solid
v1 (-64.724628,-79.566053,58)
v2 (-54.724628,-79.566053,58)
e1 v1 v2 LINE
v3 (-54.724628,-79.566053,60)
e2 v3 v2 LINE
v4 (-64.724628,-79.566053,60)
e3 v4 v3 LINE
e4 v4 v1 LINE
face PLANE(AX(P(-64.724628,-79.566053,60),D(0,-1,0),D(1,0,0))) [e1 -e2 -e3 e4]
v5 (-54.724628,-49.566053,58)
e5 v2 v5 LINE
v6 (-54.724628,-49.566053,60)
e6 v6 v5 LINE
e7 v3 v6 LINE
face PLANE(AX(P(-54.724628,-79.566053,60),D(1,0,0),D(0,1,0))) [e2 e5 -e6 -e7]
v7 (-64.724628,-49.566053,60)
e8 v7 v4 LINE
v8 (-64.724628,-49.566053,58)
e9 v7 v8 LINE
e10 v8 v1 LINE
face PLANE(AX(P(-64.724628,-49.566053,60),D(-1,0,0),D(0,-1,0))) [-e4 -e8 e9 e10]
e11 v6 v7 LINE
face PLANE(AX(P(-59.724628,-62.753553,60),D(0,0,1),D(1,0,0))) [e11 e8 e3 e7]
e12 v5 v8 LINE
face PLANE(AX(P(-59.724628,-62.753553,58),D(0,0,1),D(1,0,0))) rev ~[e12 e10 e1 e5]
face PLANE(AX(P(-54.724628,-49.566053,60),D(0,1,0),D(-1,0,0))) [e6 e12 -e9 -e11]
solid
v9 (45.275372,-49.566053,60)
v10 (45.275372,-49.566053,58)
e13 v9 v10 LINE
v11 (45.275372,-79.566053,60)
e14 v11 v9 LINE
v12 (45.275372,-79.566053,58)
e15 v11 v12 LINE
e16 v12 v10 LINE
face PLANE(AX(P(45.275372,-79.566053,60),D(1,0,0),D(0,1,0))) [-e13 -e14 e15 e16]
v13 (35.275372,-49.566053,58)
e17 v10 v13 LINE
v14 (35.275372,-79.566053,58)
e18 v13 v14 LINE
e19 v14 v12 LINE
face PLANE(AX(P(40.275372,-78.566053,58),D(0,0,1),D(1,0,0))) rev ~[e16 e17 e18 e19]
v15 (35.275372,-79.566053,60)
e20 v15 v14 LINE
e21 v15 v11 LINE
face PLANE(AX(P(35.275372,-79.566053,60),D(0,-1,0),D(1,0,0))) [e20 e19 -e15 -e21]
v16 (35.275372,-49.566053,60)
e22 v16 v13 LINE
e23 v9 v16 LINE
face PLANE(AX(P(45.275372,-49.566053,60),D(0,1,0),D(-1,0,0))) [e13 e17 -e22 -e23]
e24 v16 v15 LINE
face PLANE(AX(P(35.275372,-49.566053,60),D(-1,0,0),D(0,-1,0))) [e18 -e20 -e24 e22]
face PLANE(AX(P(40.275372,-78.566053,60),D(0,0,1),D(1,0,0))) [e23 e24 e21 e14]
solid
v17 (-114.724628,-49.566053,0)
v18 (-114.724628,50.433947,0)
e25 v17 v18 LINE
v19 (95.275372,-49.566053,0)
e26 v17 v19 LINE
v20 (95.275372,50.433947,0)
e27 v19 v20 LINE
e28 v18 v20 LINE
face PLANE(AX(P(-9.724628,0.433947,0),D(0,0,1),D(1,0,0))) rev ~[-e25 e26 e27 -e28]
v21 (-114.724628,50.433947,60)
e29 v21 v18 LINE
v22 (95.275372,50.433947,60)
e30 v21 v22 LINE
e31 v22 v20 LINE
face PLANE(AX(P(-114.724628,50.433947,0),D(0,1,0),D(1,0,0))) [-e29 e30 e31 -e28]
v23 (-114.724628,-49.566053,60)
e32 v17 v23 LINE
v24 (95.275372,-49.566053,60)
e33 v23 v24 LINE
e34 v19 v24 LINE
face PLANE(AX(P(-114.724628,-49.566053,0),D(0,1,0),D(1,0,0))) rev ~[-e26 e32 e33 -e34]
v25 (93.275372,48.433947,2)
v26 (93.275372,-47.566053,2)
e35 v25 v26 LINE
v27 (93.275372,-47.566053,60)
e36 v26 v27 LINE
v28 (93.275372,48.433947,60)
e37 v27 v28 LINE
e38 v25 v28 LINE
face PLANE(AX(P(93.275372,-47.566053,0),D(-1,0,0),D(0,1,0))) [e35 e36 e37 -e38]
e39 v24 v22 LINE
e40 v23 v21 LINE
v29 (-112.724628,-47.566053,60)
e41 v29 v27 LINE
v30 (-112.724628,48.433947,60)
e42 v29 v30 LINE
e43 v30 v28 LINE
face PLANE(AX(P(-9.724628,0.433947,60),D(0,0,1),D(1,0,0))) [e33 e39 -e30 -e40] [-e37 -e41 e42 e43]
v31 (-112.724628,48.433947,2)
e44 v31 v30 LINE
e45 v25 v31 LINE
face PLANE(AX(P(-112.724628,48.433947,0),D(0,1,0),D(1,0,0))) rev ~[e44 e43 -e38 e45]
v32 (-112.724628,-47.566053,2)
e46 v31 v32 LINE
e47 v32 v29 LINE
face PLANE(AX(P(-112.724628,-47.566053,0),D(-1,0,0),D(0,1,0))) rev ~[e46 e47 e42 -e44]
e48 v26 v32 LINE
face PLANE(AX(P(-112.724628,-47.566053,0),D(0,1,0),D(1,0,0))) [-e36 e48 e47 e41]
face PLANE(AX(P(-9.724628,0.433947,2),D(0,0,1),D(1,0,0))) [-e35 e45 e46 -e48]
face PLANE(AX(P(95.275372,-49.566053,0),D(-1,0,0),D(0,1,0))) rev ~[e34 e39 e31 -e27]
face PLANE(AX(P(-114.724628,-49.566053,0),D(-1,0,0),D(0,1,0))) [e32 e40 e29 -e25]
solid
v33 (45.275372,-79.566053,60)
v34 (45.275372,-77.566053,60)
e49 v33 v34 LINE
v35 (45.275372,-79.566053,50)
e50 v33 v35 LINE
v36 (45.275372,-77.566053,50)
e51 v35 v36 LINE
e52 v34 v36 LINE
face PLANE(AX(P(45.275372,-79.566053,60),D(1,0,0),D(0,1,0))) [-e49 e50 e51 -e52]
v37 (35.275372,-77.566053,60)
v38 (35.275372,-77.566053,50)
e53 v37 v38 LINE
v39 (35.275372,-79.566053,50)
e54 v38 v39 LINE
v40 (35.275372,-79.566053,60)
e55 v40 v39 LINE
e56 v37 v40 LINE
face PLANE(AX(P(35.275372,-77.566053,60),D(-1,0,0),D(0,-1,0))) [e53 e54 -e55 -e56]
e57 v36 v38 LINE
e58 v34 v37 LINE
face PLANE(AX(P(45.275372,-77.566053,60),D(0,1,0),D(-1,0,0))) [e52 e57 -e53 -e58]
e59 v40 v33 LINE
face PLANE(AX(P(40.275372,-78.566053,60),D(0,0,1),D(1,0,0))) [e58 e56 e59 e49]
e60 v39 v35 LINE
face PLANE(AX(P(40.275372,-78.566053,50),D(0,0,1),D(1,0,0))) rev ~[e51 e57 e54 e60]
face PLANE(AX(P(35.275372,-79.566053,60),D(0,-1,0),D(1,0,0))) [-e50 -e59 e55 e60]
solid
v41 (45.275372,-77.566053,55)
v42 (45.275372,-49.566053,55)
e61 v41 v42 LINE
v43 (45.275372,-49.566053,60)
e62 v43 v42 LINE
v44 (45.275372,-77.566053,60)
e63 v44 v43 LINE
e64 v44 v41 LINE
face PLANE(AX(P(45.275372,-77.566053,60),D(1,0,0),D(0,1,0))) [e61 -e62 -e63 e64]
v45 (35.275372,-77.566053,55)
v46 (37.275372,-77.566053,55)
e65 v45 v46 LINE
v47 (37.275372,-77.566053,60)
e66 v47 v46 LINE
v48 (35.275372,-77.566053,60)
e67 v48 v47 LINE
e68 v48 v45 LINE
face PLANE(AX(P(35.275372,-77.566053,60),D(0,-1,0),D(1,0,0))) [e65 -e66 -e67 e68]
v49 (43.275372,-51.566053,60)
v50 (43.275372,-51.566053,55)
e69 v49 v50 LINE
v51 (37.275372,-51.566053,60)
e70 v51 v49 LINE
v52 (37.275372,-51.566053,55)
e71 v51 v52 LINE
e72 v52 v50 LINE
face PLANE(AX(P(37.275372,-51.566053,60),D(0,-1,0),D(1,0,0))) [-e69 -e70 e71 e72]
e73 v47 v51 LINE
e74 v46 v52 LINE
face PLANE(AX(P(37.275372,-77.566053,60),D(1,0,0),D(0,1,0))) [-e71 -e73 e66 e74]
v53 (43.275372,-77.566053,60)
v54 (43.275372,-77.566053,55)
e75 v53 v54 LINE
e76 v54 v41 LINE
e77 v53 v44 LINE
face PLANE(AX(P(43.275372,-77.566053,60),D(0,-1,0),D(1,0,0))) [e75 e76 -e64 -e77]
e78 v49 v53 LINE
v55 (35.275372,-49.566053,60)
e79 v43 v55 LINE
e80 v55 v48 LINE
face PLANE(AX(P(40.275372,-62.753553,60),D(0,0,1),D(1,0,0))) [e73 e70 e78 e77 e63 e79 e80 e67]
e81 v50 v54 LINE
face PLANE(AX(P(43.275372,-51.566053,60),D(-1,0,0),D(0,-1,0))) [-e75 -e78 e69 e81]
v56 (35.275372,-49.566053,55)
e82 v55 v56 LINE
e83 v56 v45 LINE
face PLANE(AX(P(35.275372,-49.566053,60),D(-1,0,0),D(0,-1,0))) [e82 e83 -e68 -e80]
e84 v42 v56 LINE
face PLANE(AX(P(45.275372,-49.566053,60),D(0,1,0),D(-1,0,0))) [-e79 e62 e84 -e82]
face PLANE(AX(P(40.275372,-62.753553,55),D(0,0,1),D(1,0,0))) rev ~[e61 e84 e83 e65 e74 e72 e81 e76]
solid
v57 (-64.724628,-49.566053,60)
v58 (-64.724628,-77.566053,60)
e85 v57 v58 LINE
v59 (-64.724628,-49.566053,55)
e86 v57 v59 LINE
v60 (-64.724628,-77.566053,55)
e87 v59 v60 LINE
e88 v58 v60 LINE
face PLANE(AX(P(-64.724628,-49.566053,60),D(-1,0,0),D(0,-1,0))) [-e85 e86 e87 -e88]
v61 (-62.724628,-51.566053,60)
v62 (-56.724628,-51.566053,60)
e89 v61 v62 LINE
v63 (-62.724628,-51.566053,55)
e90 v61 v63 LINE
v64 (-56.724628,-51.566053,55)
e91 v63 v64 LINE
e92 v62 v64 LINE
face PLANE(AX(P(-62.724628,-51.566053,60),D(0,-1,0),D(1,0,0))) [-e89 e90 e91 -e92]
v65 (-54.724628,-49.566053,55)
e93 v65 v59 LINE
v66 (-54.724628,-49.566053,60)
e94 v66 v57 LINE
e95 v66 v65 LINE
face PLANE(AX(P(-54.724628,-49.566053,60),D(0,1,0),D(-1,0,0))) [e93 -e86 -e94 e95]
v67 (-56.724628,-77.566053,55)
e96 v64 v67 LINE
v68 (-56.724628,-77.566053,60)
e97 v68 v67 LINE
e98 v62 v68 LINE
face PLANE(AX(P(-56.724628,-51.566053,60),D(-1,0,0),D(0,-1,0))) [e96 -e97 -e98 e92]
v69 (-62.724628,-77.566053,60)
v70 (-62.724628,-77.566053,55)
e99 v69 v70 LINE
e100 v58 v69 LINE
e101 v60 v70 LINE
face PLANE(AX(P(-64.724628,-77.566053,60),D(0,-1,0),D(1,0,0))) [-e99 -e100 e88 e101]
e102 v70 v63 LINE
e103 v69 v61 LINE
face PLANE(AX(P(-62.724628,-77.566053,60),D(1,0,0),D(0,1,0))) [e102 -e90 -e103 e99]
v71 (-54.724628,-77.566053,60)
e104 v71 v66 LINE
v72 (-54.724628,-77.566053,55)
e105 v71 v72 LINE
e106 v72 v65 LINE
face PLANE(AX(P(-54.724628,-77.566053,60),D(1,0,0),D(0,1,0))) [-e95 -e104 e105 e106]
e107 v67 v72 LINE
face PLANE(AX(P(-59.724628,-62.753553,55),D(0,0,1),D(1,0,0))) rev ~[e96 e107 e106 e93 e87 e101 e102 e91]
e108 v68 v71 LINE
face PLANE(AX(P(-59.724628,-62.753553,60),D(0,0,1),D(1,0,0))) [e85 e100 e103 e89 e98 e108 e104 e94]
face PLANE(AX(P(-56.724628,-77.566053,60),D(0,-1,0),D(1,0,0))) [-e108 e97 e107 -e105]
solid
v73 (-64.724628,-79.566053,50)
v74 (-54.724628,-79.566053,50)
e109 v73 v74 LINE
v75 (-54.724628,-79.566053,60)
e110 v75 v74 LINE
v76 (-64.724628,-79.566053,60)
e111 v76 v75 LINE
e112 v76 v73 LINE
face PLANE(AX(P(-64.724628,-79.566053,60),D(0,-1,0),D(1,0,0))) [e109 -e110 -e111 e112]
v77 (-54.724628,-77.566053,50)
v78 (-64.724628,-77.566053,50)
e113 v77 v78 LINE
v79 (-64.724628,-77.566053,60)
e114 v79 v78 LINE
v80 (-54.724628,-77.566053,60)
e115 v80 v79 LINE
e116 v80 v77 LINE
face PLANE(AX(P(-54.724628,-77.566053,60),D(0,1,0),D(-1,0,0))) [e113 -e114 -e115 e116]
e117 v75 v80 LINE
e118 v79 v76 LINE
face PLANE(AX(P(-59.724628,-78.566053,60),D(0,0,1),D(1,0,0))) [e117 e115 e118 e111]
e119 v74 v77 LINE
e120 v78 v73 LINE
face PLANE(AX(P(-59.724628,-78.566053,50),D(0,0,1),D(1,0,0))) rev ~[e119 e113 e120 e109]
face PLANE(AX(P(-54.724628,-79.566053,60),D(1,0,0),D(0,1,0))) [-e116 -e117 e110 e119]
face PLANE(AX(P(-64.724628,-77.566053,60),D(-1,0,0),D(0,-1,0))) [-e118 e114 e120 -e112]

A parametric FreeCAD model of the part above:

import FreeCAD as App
import Part
import Sketcher

V = App.Vector
Q = App.Units.Quantity


def add_polygon(sketch, points):
    """Adds a closed chain of lines whose ends are joined by coincident constraints."""
    first, n = sketch.GeometryCount, len(points)
    for a, b in zip(points, points[1:] + points[:1]):
        sketch.addGeometry(Part.LineSegment(App.Vector(*a, 0), App.Vector(*b, 0)), False)
    for i in range(n):
        sketch.addConstraint(Sketcher.Constraint("Coincident", first + i, 2, first + (i + 1) % n, 1))

doc = App.newDocument("Part")
body = doc.addObject("PartDesign::Body", "Body")

sketch1 = body.newObject("Sketcher::SketchObject", "Sketch")
sketch1.AttachmentSupport = (doc.getObject("XY_Plane"), [""])
sketch1.MapMode = "FlatFace"
add_polygon(sketch1, [(-115, 50), (-115, -50), (95, -50), (95, 50)])
sketch1.addConstraint(Sketcher.Constraint("Vertical", 0))
sketch1.addConstraint(Sketcher.Constraint("Horizontal", 1))
sketch1.addConstraint(Sketcher.Constraint("Vertical", 2))
sketch1.addConstraint(Sketcher.Constraint("Horizontal", 3))
sketch1.addConstraint(Sketcher.Constraint("DistanceX", 1, 1, 1, 2, Q("210 mm")))
sketch1.addConstraint(Sketcher.Constraint("DistanceY", 0, 2, 0, 1, Q("100 mm")))
sketch1.addConstraint(Sketcher.Constraint("DistanceX", 0, 2, -1, 1, Q("114.724628 mm")))
sketch1.addConstraint(Sketcher.Constraint("DistanceY", 0, 2, -1, 1, Q("49.566053 mm")))
pad1 = body.newObject("PartDesign::Pad", "Pad")
pad1.Profile = sketch1
pad1.Length = 2

sketch2 = body.newObject("Sketcher::SketchObject", "Sketch001")
sketch2.AttachmentSupport = (doc.getObject("XY_Plane"), [""])
sketch2.MapMode = "FlatFace"
add_polygon(sketch2, [(-115, 50), (-115, -50), (95, -50), (95, 50)])
add_polygon(sketch2, [(93, -48), (-113, -48), (-113, 48), (93, 48)])
sketch2.addConstraint(Sketcher.Constraint("Vertical", 0))
sketch2.addConstraint(Sketcher.Constraint("Horizontal", 1))
sketch2.addConstraint(Sketcher.Constraint("Vertical", 2))
sketch2.addConstraint(Sketcher.Constraint("Horizontal", 3))
sketch2.addConstraint(Sketcher.Constraint("Horizontal", 4))
sketch2.addConstraint(Sketcher.Constraint("Vertical", 5))
sketch2.addConstraint(Sketcher.Constraint("Horizontal", 6))
sketch2.addConstraint(Sketcher.Constraint("Vertical", 7))
sketch2.addConstraint(Sketcher.Constraint("DistanceX", 1, 1, 1, 2, Q("210 mm")))
sketch2.addConstraint(Sketcher.Constraint("DistanceX", 4, 2, 4, 1, Q("206 mm")))
sketch2.addConstraint(Sketcher.Constraint("DistanceY", 0, 2, 0, 1, Q("100 mm")))
sketch2.addConstraint(Sketcher.Constraint("DistanceY", 5, 1, 5, 2, Q("96 mm")))
sketch2.addConstraint(Sketcher.Constraint("DistanceX", 0, 2, 4, 2, Q("2 mm")))
sketch2.addConstraint(Sketcher.Constraint("DistanceY", 0, 2, 4, 2, Q("2 mm")))
sketch2.addConstraint(Sketcher.Constraint("DistanceX", 0, 2, -1, 1, Q("114.724628 mm")))
sketch2.addConstraint(Sketcher.Constraint("DistanceY", 0, 2, -1, 1, Q("49.566053 mm")))
pad2 = body.newObject("PartDesign::Pad", "Pad001")
pad2.Profile = sketch2
pad2.Length = 60
body2 = doc.addObject("PartDesign::Body", "Body001")

sketch3 = body2.newObject("Sketcher::SketchObject", "Sketch002")
sketch3.AttachmentSupport = (doc.getObject("XY_Plane001"), [""])
sketch3.MapMode = "FlatFace"
sketch3.AttachmentOffset = App.Placement(V(0, 0, 60), App.Rotation())
add_polygon(sketch3, [(-55, -50), (-65, -50), (-65, -80), (-55, -80)])
sketch3.addConstraint(Sketcher.Constraint("Horizontal", 0))
sketch3.addConstraint(Sketcher.Constraint("Vertical", 1))
sketch3.addConstraint(Sketcher.Constraint("Horizontal", 2))
sketch3.addConstraint(Sketcher.Constraint("Vertical", 3))
sketch3.addConstraint(Sketcher.Constraint("DistanceX", 0, 2, 0, 1, Q("10 mm")))
sketch3.addConstraint(Sketcher.Constraint("DistanceY", 1, 2, 1, 1, Q("30 mm")))
sketch3.addConstraint(Sketcher.Constraint("DistanceX", 0, 2, -1, 1, Q("64.724628 mm")))
sketch3.addConstraint(Sketcher.Constraint("DistanceY", 0, 2, -1, 1, Q("49.566053 mm")))
pad3 = body2.newObject("PartDesign::Pad", "Pad002")
pad3.Profile = sketch3
pad3.Length = 2
pad3.Reversed = True
body3 = doc.addObject("PartDesign::Body", "Body002")

sketch4 = body3.newObject("Sketcher::SketchObject", "Sketch003")
sketch4.AttachmentSupport = (doc.getObject("XY_Plane002"), [""])
sketch4.MapMode = "FlatFace"
sketch4.AttachmentOffset = App.Placement(V(0, 0, 60), App.Rotation())
add_polygon(sketch4, [(35, -80), (45, -80), (45, -50), (35, -50)])
sketch4.addConstraint(Sketcher.Constraint("Horizontal", 0))
sketch4.addConstraint(Sketcher.Constraint("Vertical", 1))
sketch4.addConstraint(Sketcher.Constraint("Horizontal", 2))
sketch4.addConstraint(Sketcher.Constraint("Vertical", 3))
sketch4.addConstraint(Sketcher.Constraint("DistanceX", 0, 1, 0, 2, Q("10 mm")))
sketch4.addConstraint(Sketcher.Constraint("DistanceY", 1, 1, 1, 2, Q("30 mm")))
sketch4.addConstraint(Sketcher.Constraint("DistanceX", -1, 1, 0, 2, Q("45.275372 mm")))
sketch4.addConstraint(Sketcher.Constraint("DistanceY", 0, 2, -1, 1, Q("79.566053 mm")))
pad4 = body3.newObject("PartDesign::Pad", "Pad003")
pad4.Profile = sketch4
pad4.Length = 2
pad4.Reversed = True
body4 = doc.addObject("PartDesign::Body", "Body003")

sketch5 = body4.newObject("Sketcher::SketchObject", "Sketch004")
sketch5.AttachmentSupport = (doc.getObject("XY_Plane003"), [""])
sketch5.MapMode = "FlatFace"
sketch5.AttachmentOffset = App.Placement(V(0, 0, 60), App.Rotation())
add_polygon(sketch5, [(-64.7, -77.6), (-64.7, -79.6), (-54.7, -79.6), (-54.7, -77.6)])
sketch5.addConstraint(Sketcher.Constraint("Vertical", 0))
sketch5.addConstraint(Sketcher.Constraint("Horizontal", 1))
sketch5.addConstraint(Sketcher.Constraint("Vertical", 2))
sketch5.addConstraint(Sketcher.Constraint("Horizontal", 3))
sketch5.addConstraint(Sketcher.Constraint("DistanceX", 1, 1, 1, 2, Q("10 mm")))
sketch5.addConstraint(Sketcher.Constraint("DistanceY", 0, 2, 0, 1, Q("2 mm")))
sketch5.addConstraint(Sketcher.Constraint("DistanceX", 0, 2, -1, 1, Q("64.724628 mm")))
sketch5.addConstraint(Sketcher.Constraint("DistanceY", 0, 2, -1, 1, Q("79.566053 mm")))
pad5 = body4.newObject("PartDesign::Pad", "Pad004")
pad5.Profile = sketch5
pad5.Length = 10
pad5.Reversed = True
body5 = doc.addObject("PartDesign::Body", "Body004")

sketch6 = body5.newObject("Sketcher::SketchObject", "Sketch005")
sketch6.AttachmentSupport = (doc.getObject("XY_Plane004"), [""])
sketch6.MapMode = "FlatFace"
sketch6.AttachmentOffset = App.Placement(V(0, 0, 60), App.Rotation())
add_polygon(sketch6, [(35.3, -77.6), (35.3, -79.6), (45.3, -79.6), (45.3, -77.6)])
sketch6.addConstraint(Sketcher.Constraint("Vertical", 0))
sketch6.addConstraint(Sketcher.Constraint("Horizontal", 1))
sketch6.addConstraint(Sketcher.Constraint("Vertical", 2))
sketch6.addConstraint(Sketcher.Constraint("Horizontal", 3))
sketch6.addConstraint(Sketcher.Constraint("DistanceX", 1, 1, 1, 2, Q("10 mm")))
sketch6.addConstraint(Sketcher.Constraint("DistanceY", 0, 2, 0, 1, Q("2 mm")))
sketch6.addConstraint(Sketcher.Constraint("DistanceX", -1, 1, 0, 2, Q("35.275372 mm")))
sketch6.addConstraint(Sketcher.Constraint("DistanceY", 0, 2, -1, 1, Q("79.566053 mm")))
pad6 = body5.newObject("PartDesign::Pad", "Pad005")
pad6.Profile = sketch6
pad6.Length = 10
pad6.Reversed = True
body6 = doc.addObject("PartDesign::Body", "Body005")

sketch7 = body6.newObject("Sketcher::SketchObject", "Sketch006")
sketch7.AttachmentSupport = (doc.getObject("XY_Plane005"), [""])
sketch7.MapMode = "FlatFace"
sketch7.AttachmentOffset = App.Placement(V(0, 0, 60), App.Rotation())
add_polygon(sketch7, [(-54.7, -49.6), (-64.7, -49.6), (-64.7, -77.6), (-62.7, -77.6), (-62.7, -51.6), (-56.7, -51.6), (-56.7, -77.6), (-54.7, -77.6)])
sketch7.addConstraint(Sketcher.Constraint("Horizontal", 0))
sketch7.addConstraint(Sketcher.Constraint("Vertical", 1))
sketch7.addConstraint(Sketcher.Constraint("Horizontal", 2))
sketch7.addConstraint(Sketcher.Constraint("Vertical", 3))
sketch7.addConstraint(Sketcher.Constraint("Horizontal", 4))
sketch7.addConstraint(Sketcher.Constraint("Vertical", 5))
sketch7.addConstraint(Sketcher.Constraint("Horizontal", 6))
sketch7.addConstraint(Sketcher.Constraint("Vertical", 7))
sketch7.addConstraint(Sketcher.Constraint("Horizontal", 2, 2, 5, 2))
sketch7.addConstraint(Sketcher.Constraint("Equal", 2, 6))
sketch7.addConstraint(Sketcher.Constraint("DistanceX", 0, 2, 0, 1, Q("10 mm")))
sketch7.addConstraint(Sketcher.Constraint("DistanceX", 2, 1, 2, 2, Q("2 mm")))
sketch7.addConstraint(Sketcher.Constraint("DistanceY", 1, 2, 1, 1, Q("28 mm")))
sketch7.addConstraint(Sketcher.Constraint("DistanceY", 3, 1, 3, 2, Q("26 mm")))
sketch7.addConstraint(Sketcher.Constraint("DistanceX", 0, 2, -1, 1, Q("64.724628 mm")))
sketch7.addConstraint(Sketcher.Constraint("DistanceY", 0, 2, -1, 1, Q("49.566053 mm")))
pad7 = body6.newObject("PartDesign::Pad", "Pad006")
pad7.Profile = sketch7
pad7.Length = 5
pad7.Reversed = True
body7 = doc.addObject("PartDesign::Body", "Body006")

sketch8 = body7.newObject("Sketcher::SketchObject", "Sketch007")
sketch8.AttachmentSupport = (doc.getObject("XY_Plane006"), [""])
sketch8.MapMode = "FlatFace"
sketch8.AttachmentOffset = App.Placement(V(0, 0, 60), App.Rotation())
add_polygon(sketch8, [(45.3, -49.6), (35.3, -49.6), (35.3, -77.6), (37.3, -77.6), (37.3, -51.6), (43.3, -51.6), (43.3, -77.6), (45.3, -77.6)])
sketch8.addConstraint(Sketcher.Constraint("Horizontal", 0))
sketch8.addConstraint(Sketcher.Constraint("Vertical", 1))
sketch8.addConstraint(Sketcher.Constraint("Horizontal", 2))
sketch8.addConstraint(Sketcher.Constraint("Vertical", 3))
sketch8.addConstraint(Sketcher.Constraint("Horizontal", 4))
sketch8.addConstraint(Sketcher.Constraint("Vertical", 5))
sketch8.addConstraint(Sketcher.Constraint("Horizontal", 6))
sketch8.addConstraint(Sketcher.Constraint("Vertical", 7))
sketch8.addConstraint(Sketcher.Constraint("Horizontal", 2, 2, 5, 2))
sketch8.addConstraint(Sketcher.Constraint("Equal", 2, 6))
sketch8.addConstraint(Sketcher.Constraint("DistanceX", 0, 2, 0, 1, Q("10 mm")))
sketch8.addConstraint(Sketcher.Constraint("DistanceX", 2, 1, 2, 2, Q("2 mm")))
sketch8.addConstraint(Sketcher.Constraint("DistanceY", 1, 2, 1, 1, Q("28 mm")))
sketch8.addConstraint(Sketcher.Constraint("DistanceY", 3, 1, 3, 2, Q("26 mm")))
sketch8.addConstraint(Sketcher.Constraint("DistanceX", -1, 1, 0, 2, Q("35.275372 mm")))
sketch8.addConstraint(Sketcher.Constraint("DistanceY", 0, 2, -1, 1, Q("49.566053 mm")))
pad8 = body7.newObject("PartDesign::Pad", "Pad007")
pad8.Profile = sketch8
pad8.Length = 5
pad8.Reversed = True

doc.recompute()
